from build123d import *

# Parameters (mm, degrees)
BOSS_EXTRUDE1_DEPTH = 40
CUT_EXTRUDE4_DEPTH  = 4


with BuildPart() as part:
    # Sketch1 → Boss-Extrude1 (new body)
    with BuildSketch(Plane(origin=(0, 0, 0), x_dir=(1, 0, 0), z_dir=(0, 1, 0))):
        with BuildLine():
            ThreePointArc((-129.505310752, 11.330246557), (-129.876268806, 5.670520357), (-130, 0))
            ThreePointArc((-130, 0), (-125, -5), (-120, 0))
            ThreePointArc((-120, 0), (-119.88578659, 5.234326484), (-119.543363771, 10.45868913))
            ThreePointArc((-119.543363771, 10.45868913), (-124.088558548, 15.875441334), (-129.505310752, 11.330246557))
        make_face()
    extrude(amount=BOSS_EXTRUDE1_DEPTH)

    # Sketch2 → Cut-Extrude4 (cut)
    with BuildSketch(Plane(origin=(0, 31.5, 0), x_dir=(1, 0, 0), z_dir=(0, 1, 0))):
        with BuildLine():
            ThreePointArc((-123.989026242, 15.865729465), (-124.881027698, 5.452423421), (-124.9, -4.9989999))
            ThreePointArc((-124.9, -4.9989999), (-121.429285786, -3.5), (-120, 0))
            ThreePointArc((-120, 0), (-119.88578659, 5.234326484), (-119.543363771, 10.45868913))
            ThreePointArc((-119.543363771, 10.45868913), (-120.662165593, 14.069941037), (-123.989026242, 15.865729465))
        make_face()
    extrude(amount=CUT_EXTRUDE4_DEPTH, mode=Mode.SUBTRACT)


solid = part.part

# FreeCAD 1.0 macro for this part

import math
import FreeCAD as App
import Part
import Sketcher

V = App.Vector
Q = App.Units.Quantity

doc = App.newDocument("Part")
body = doc.addObject("PartDesign::Body", "Body")

sketch1 = body.newObject("Sketcher::SketchObject", "Sketch")
sketch1.AttachmentSupport = (doc.getObject("XZ_Plane"), [""])
sketch1.MapMode = "FlatFace"
sketch1.addGeometry([
    Part.ArcOfCircle(Part.Circle(V(0, 0, 0), V(0, 0, 1), 130), math.radians(180), math.radians(185)),
    Part.ArcOfCircle(Part.Circle(V(-125, 0, 0), V(0, 0, 1), 5), math.radians(0), math.radians(180)),
    Part.ArcOfCircle(Part.Circle(V(0, 0, 0), V(0, 0, 1), 120), math.radians(180), math.radians(185)),
    Part.ArcOfCircle(Part.Circle(V(-125, -11, 0), V(0, 0, 1), 5), math.radians(-175), math.radians(5)),
], False)
sketch1.addConstraint([
    Sketcher.Constraint("Tangent", 0, 1, 1, 2),
    Sketcher.Constraint("Tangent", 1, 1, 2, 1),
    Sketcher.Constraint("Tangent", 2, 2, 3, 2),
    Sketcher.Constraint("Tangent", 3, 1, 0, 2),
    Sketcher.Constraint("Coincident", 0, 3, -1, 1),
    Sketcher.Constraint("Coincident", 2, 3, -1, 1),
    Sketcher.Constraint("PointOnObject", 1, 3, -1),
    Sketcher.Constraint("Radius", 0, Q("130 mm")),
    Sketcher.Constraint("Radius", 1, Q("5 mm")),
    Sketcher.Constraint("DistanceY", 2, 2, -1, 1, Q("10.458689 mm")),
])
pad1 = body.newObject("PartDesign::Pad", "Pad")
pad1.Profile = sketch1
pad1.Length = 40
pad1.Reversed = True

sketch2 = body.newObject("Sketcher::SketchObject", "Sketch001")
sketch2.AttachmentSupport = (doc.getObject("XZ_Plane"), [""])
sketch2.MapMode = "FlatFace"
sketch2.AttachmentOffset = App.Placement(V(0, 0, -31.5), App.Rotation())
sketch2.addGeometry([
    Part.ArcOfCircle(Part.Circle(V(0, 0, 0), V(0, 0, 1), 125), math.radians(177.71), math.radians(187.29)),
    Part.ArcOfCircle(Part.Circle(V(-125, 0, 0), V(0, 0, 1), 5), math.radians(0), math.radians(89)),
    Part.ArcOfCircle(Part.Circle(V(0, 0, 0), V(0, 0, 1), 120), math.radians(180), math.radians(185)),
    Part.ArcOfCircle(Part.Circle(V(-125, -11, 0), V(0, 0, 1), 5), math.radians(-84), math.radians(5)),
], False)
sketch2.addConstraint([
    Sketcher.Constraint("Coincident", 0, 1, 1, 2),
    Sketcher.Constraint("Tangent", 1, 1, 2, 1),
    Sketcher.Constraint("Tangent", 2, 2, 3, 2),
    Sketcher.Constraint("Coincident", 3, 1, 0, 2),
    Sketcher.Constraint("Coincident", 0, 3, -1, 1),
    Sketcher.Constraint("Coincident", 2, 3, -1, 1),
    Sketcher.Constraint("Equal", 1, 3),
    Sketcher.Constraint("PointOnObject", 1, 3, -1),
    Sketcher.Constraint("Radius", 0, Q("125 mm")),
    Sketcher.Constraint("Radius", 1, Q("5 mm")),
    Sketcher.Constraint("Radius", 2, Q("120 mm")),
    Sketcher.Constraint("DistanceY", 2, 2, -1, 1, Q("10.458689 mm")),
])
pocket1 = body.newObject("PartDesign::Pocket", "Pocket")
pocket1.Profile = sketch2
pocket1.Length = 4

doc.recompute()
